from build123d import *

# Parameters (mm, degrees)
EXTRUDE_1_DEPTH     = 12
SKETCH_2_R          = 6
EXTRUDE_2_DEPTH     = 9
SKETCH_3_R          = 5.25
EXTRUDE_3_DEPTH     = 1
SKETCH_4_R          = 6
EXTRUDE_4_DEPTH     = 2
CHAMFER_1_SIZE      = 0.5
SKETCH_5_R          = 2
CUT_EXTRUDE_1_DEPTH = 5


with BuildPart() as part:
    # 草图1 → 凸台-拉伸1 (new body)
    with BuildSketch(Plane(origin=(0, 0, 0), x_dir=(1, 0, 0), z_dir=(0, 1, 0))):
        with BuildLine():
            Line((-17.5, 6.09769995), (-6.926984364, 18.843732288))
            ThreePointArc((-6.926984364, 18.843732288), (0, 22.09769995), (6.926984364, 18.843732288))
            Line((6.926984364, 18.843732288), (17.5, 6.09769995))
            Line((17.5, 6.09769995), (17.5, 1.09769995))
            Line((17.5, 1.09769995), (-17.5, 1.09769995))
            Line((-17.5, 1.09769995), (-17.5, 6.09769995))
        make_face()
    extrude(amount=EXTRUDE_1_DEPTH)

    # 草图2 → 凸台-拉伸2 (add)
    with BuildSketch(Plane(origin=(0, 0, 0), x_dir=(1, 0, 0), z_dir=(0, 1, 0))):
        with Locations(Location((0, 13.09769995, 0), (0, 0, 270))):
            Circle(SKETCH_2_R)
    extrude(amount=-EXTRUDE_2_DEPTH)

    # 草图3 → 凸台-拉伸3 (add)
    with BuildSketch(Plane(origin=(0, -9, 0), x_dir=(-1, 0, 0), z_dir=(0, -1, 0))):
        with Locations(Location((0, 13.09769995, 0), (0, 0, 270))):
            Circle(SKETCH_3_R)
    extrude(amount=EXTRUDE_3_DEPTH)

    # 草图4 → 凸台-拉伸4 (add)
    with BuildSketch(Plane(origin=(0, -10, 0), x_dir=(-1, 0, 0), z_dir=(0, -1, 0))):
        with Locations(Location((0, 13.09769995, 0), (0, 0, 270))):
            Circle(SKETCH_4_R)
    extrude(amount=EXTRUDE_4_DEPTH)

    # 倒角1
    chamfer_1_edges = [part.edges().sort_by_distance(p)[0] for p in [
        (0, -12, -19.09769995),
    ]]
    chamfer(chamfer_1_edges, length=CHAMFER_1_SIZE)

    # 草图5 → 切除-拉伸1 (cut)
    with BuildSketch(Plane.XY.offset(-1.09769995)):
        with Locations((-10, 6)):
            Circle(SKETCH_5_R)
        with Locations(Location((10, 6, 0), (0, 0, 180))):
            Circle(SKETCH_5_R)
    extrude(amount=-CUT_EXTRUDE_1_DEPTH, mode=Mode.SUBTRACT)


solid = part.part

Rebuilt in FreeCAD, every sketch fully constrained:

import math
import FreeCAD as App
import Part
import Sketcher
from FreeCAD import Vector


def edges_at(feature, points):
    """Names of the edges that pass closest to the given points."""
    edges = feature.Shape.Edges
    near = lambda p: min(range(len(edges)), key=lambda i: edges[i].distToShape(Part.Vertex(*p))[0])
    return sorted({f"Edge{near(p) + 1}" for p in points})

doc = App.newDocument("Part")
params = doc.addObject("Spreadsheet::Sheet", "Params")
for row, (alias, value) in enumerate([
    ("sketch1_radius", "9 mm"),
    ("sketch1_width", "35 mm"),
    ("sketch1_height", "5 mm"),
    ("pad1_length", "12 mm"),
    ("sketch2_diameter", "12 mm"),
    ("pad2_length", "9 mm"),
    ("sketch3_diameter", "10.5 mm"),
    ("pad3_length", "1 mm"),
    ("sketch4_diameter", "12 mm"),
    ("pad4_length", "2 mm"),
    ("chamfer_size", "0.5 mm"),
    ("sketch5_diameter", "4 mm"),
    ("pocket1_length", "5 mm"),
], start=1):
    params.set(f"A{row}", alias)
    params.set(f"B{row}", "=" + value)
    params.setAlias(f"B{row}", alias)

body = doc.addObject("PartDesign::Body", "Body")

# Sketch on XZ plane
sketch1 = body.newObject("Sketcher::SketchObject", "Sketch")
sketch1.AttachmentSupport = (doc.getObject("XZ_Plane"), [""])
sketch1.MapMode = "FlatFace"
sketch1.addGeometry(Part.LineSegment(Vector(-7, -19, 0), Vector(-18, -6, 0)), False)
sketch1.addGeometry(Part.LineSegment(Vector(-18, -6, 0), Vector(-18, -1, 0)), False)
sketch1.addGeometry(Part.LineSegment(Vector(-18, -1, 0), Vector(18, -1, 0)), False)
sketch1.addGeometry(Part.LineSegment(Vector(18, -1, 0), Vector(18, -6, 0)), False)
sketch1.addGeometry(Part.LineSegment(Vector(18, -6, 0), Vector(7, -19, 0)), False)
sketch1.addGeometry(Part.ArcOfCircle(Part.Circle(Vector(0, -13, 0), Vector(0, 0, 1), 9), math.radians(-140), math.radians(-40)), False)
sketch1.addConstraint(Sketcher.Constraint("Coincident", 0, 2, 1, 1))
sketch1.addConstraint(Sketcher.Constraint("Coincident", 1, 2, 2, 1))
sketch1.addConstraint(Sketcher.Constraint("Coincident", 2, 2, 3, 1))
sketch1.addConstraint(Sketcher.Constraint("Coincident", 3, 2, 4, 1))
sketch1.addConstraint(Sketcher.Constraint("Tangent", 4, 2, 5, 2))
sketch1.addConstraint(Sketcher.Constraint("Tangent", 5, 1, 0, 1))
sketch1.addConstraint(Sketcher.Constraint("Vertical", 1))
sketch1.addConstraint(Sketcher.Constraint("Horizontal", 2))
sketch1.addConstraint(Sketcher.Constraint("Vertical", 3))
sketch1.addConstraint(Sketcher.Constraint("Symmetric", 0, 2, 3, 2, -2))
sketch1.addConstraint(Sketcher.Constraint("PointOnObject", 5, 3, -2))
sketch1.addConstraint(Sketcher.Constraint("Radius", 5, 9.0))
sketch1.addConstraint(Sketcher.Constraint("DistanceX", 2, 1, 2, 2, 35.0))
sketch1.addConstraint(Sketcher.Constraint("DistanceY", 1, 1, 1, 2, 5.0))
sketch1.addConstraint(Sketcher.Constraint("DistanceY", 5, 3, 0, 2, 7.0))
sketch1.addConstraint(Sketcher.Constraint("DistanceY", 5, 3, -1, 1, 13.0977))
sketch1.setExpression("Constraints[11]", "Params.sketch1_radius")
sketch1.setExpression("Constraints[12]", "Params.sketch1_width")
sketch1.setExpression("Constraints[13]", "Params.sketch1_height")
pad1 = body.newObject("PartDesign::Pad", "Pad")
pad1.Profile = sketch1
pad1.setExpression("Length", "Params.pad1_length")
pad1.Reversed = True

# Sketch on XZ plane
sketch2 = body.newObject("Sketcher::SketchObject", "Sketch001")
sketch2.AttachmentSupport = (doc.getObject("XZ_Plane"), [""])
sketch2.MapMode = "FlatFace"
sketch2.addGeometry(Part.Circle(Vector(0, -13, 0), Vector(0, 0, 1), 6), False)
sketch2.addConstraint(Sketcher.Constraint("PointOnObject", 0, 3, -2))
sketch2.addConstraint(Sketcher.Constraint("Diameter", 0, 12.0))
sketch2.addConstraint(Sketcher.Constraint("DistanceY", 0, 3, -1, 1, 13.0977))
sketch2.setExpression("Constraints[1]", "Params.sketch2_diameter")
pad2 = body.newObject("PartDesign::Pad", "Pad001")
pad2.Profile = sketch2
pad2.setExpression("Length", "Params.pad2_length")

# Sketch on XZ plane
sketch3 = body.newObject("Sketcher::SketchObject", "Sketch002")
sketch3.AttachmentSupport = (doc.getObject("XZ_Plane"), [""])
sketch3.MapMode = "FlatFace"
sketch3.AttachmentOffset = App.Placement(Vector(0, 0, 9), App.Rotation())
sketch3.addGeometry(Part.Circle(Vector(0, -13, 0), Vector(0, 0, 1), 5), False)
sketch3.addConstraint(Sketcher.Constraint("PointOnObject", 0, 3, -2))
sketch3.addConstraint(Sketcher.Constraint("Diameter", 0, 10.5))
sketch3.addConstraint(Sketcher.Constraint("DistanceY", 0, 3, -1, 1, 13.0977))
sketch3.setExpression("Constraints[1]", "Params.sketch3_diameter")
pad3 = body.newObject("PartDesign::Pad", "Pad002")
pad3.Profile = sketch3
pad3.setExpression("Length", "Params.pad3_length")

# Sketch on XZ plane
sketch4 = body.newObject("Sketcher::SketchObject", "Sketch003")
sketch4.AttachmentSupport = (doc.getObject("XZ_Plane"), [""])
sketch4.MapMode = "FlatFace"
sketch4.AttachmentOffset = App.Placement(Vector(0, 0, 10), App.Rotation())
sketch4.addGeometry(Part.Circle(Vector(0, -13, 0), Vector(0, 0, 1), 6), False)
sketch4.addConstraint(Sketcher.Constraint("PointOnObject", 0, 3, -2))
sketch4.addConstraint(Sketcher.Constraint("Diameter", 0, 12.0))
sketch4.addConstraint(Sketcher.Constraint("DistanceY", 0, 3, -1, 1, 13.0977))
sketch4.setExpression("Constraints[1]", "Params.sketch4_diameter")
pad4 = body.newObject("PartDesign::Pad", "Pad003")
pad4.Profile = sketch4
pad4.setExpression("Length", "Params.pad4_length")
doc.recompute()

chamfer = body.newObject("PartDesign::Chamfer", "Chamfer")
chamfer.Base = (pad4, edges_at(pad4, [(0, -12, -19.098)]))
chamfer.setExpression("Size", "Params.chamfer_size")

# Sketch on XY plane
sketch5 = body.newObject("Sketcher::SketchObject", "Sketch004")
sketch5.AttachmentSupport = (doc.getObject("XY_Plane"), [""])
sketch5.MapMode = "FlatFace"
sketch5.AttachmentOffset = App.Placement(Vector(0, 0, -1.0977), App.Rotation())
sketch5.addGeometry(Part.Circle(Vector(-10, 6, 0), Vector(0, 0, 1), 2), False)
sketch5.addGeometry(Part.Circle(Vector(10, 6, 0), Vector(0, 0, 1), 2), False)
sketch5.addConstraint(Sketcher.Constraint("Equal", 0, 1))
sketch5.addConstraint(Sketcher.Constraint("Symmetric", 0, 3, 1, 3, -2))
sketch5.addConstraint(Sketcher.Constraint("Diameter", 0, 4.0))
sketch5.addConstraint(Sketcher.Constraint("DistanceX", 0, 3, -1, 1, 10.0))
sketch5.addConstraint(Sketcher.Constraint("DistanceY", -1, 1, 0, 3, 6.0))
sketch5.setExpression("Constraints[2]", "Params.sketch5_diameter")
pocket1 = body.newObject("PartDesign::Pocket", "Pocket")
pocket1.Profile = sketch5
pocket1.setExpression("Length", "Params.pocket1_length")

doc.recompute()
